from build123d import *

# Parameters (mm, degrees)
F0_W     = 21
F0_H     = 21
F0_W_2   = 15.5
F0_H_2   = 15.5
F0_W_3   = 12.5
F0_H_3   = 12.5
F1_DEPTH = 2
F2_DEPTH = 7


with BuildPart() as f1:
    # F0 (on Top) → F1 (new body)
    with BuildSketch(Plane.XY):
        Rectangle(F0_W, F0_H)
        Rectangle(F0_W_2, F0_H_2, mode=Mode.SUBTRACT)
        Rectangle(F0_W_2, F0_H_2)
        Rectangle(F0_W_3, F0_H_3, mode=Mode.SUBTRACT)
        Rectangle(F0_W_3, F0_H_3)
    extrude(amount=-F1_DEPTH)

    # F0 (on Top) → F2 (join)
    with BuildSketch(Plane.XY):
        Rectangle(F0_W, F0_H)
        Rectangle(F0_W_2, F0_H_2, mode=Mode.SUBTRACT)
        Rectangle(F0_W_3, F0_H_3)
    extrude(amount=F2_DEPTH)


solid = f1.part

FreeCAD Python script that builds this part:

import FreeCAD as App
import Part
import Sketcher

V = App.Vector
Q = App.Units.Quantity

doc = App.newDocument("Part")
body = doc.addObject("PartDesign::Body", "Body")

sketch1 = body.newObject("Sketcher::SketchObject", "Sketch")
sketch1.AttachmentSupport = (doc.getObject("XY_Plane"), [""])
sketch1.MapMode = "FlatFace"
sketch1.addGeometry([
    Part.LineSegment(V(-10.5, 10.5, 0), V(-10.5, -10.5, 0)),
    Part.LineSegment(V(-10.5, -10.5, 0), V(10.5, -10.5, 0)),
    Part.LineSegment(V(10.5, -10.5, 0), V(10.5, 10.5, 0)),
    Part.LineSegment(V(10.5, 10.5, 0), V(-10.5, 10.5, 0)),
], False)
sketch1.addConstraint([
    Sketcher.Constraint("Coincident", 0, 2, 1, 1),
    Sketcher.Constraint("Coincident", 1, 2, 2, 1),
    Sketcher.Constraint("Coincident", 2, 2, 3, 1),
    Sketcher.Constraint("Coincident", 3, 2, 0, 1),
    Sketcher.Constraint("Vertical", 0),
    Sketcher.Constraint("Horizontal", 1),
    Sketcher.Constraint("Vertical", 2),
    Sketcher.Constraint("Horizontal", 3),
    Sketcher.Constraint("Symmetric", 0, 2, 2, 2, -1, 1),
    Sketcher.Constraint("Equal", 3, 0),
    Sketcher.Constraint("DistanceX", 1, 1, 1, 2, Q("21 mm")),
])
pad1 = body.newObject("PartDesign::Pad", "Pad")
pad1.Profile = sketch1
pad1.Length = 2
pad1.Reversed = True

sketch2 = body.newObject("Sketcher::SketchObject", "Sketch001")
sketch2.AttachmentSupport = (doc.getObject("XY_Plane"), [""])
sketch2.MapMode = "FlatFace"
sketch2.addGeometry([
    Part.LineSegment(V(-10.5, 10.5, 0), V(-10.5, -10.5, 0)),
    Part.LineSegment(V(-10.5, -10.5, 0), V(10.5, -10.5, 0)),
    Part.LineSegment(V(10.5, -10.5, 0), V(10.5, 10.5, 0)),
    Part.LineSegment(V(10.5, 10.5, 0), V(-10.5, 10.5, 0)),
    Part.LineSegment(V(7.75, -7.75, 0), V(-7.75, -7.75, 0)),
    Part.LineSegment(V(-7.75, -7.75, 0), V(-7.75, 7.75, 0)),
    Part.LineSegment(V(-7.75, 7.75, 0), V(7.75, 7.75, 0)),
    Part.LineSegment(V(7.75, 7.75, 0), V(7.75, -7.75, 0)),
    Part.LineSegment(V(-6.25, 6.25, 0), V(-6.25, -6.25, 0)),
    Part.LineSegment(V(-6.25, -6.25, 0), V(6.25, -6.25, 0)),
    Part.LineSegment(V(6.25, -6.25, 0), V(6.25, 6.25, 0)),
    Part.LineSegment(V(6.25, 6.25, 0), V(-6.25, 6.25, 0)),
], False)
sketch2.addConstraint([
    Sketcher.Constraint("Coincident", 0, 2, 1, 1),
    Sketcher.Constraint("Coincident", 1, 2, 2, 1),
    Sketcher.Constraint("Coincident", 2, 2, 3, 1),
    Sketcher.Constraint("Coincident", 3, 2, 0, 1),
    Sketcher.Constraint("Coincident", 4, 2, 5, 1),
    Sketcher.Constraint("Coincident", 5, 2, 6, 1),
    Sketcher.Constraint("Coincident", 6, 2, 7, 1),
    Sketcher.Constraint("Coincident", 7, 2, 4, 1),
    Sketcher.Constraint("Coincident", 8, 2, 9, 1),
    Sketcher.Constraint("Coincident", 9, 2, 10, 1),
    Sketcher.Constraint("Coincident", 10, 2, 11, 1),
    Sketcher.Constraint("Coincident", 11, 2, 8, 1),
    Sketcher.Constraint("Vertical", 0),
    Sketcher.Constraint("Horizontal", 1),
    Sketcher.Constraint("Vertical", 2),
    Sketcher.Constraint("Horizontal", 3),
    Sketcher.Constraint("Horizontal", 4),
    Sketcher.Constraint("Vertical", 5),
    Sketcher.Constraint("Horizontal", 6),
    Sketcher.Constraint("Vertical", 7),
    Sketcher.Constraint("Vertical", 8),
    Sketcher.Constraint("Horizontal", 9),
    Sketcher.Constraint("Vertical", 10),
    Sketcher.Constraint("Horizontal", 11),
    Sketcher.Constraint("Symmetric", 0, 2, 2, 2, -1, 1),
    Sketcher.Constraint("Symmetric", 4, 2, 6, 2, -1, 1),
    Sketcher.Constraint("Symmetric", 8, 2, 10, 2, -1, 1),
    Sketcher.Constraint("Equal", 3, 0),
    Sketcher.Constraint("Equal", 6, 5),
    Sketcher.Constraint("Equal", 11, 8),
    Sketcher.Constraint("DistanceX", 1, 1, 1, 2, Q("21 mm")),
    Sketcher.Constraint("DistanceX", 4, 2, 4, 1, Q("15.5 mm")),
    Sketcher.Constraint("DistanceX", 9, 1, 9, 2, Q("12.5 mm")),
])
pad2 = body.newObject("PartDesign::Pad", "Pad001")
pad2.Profile = sketch2
pad2.Length = 7

doc.recompute()
